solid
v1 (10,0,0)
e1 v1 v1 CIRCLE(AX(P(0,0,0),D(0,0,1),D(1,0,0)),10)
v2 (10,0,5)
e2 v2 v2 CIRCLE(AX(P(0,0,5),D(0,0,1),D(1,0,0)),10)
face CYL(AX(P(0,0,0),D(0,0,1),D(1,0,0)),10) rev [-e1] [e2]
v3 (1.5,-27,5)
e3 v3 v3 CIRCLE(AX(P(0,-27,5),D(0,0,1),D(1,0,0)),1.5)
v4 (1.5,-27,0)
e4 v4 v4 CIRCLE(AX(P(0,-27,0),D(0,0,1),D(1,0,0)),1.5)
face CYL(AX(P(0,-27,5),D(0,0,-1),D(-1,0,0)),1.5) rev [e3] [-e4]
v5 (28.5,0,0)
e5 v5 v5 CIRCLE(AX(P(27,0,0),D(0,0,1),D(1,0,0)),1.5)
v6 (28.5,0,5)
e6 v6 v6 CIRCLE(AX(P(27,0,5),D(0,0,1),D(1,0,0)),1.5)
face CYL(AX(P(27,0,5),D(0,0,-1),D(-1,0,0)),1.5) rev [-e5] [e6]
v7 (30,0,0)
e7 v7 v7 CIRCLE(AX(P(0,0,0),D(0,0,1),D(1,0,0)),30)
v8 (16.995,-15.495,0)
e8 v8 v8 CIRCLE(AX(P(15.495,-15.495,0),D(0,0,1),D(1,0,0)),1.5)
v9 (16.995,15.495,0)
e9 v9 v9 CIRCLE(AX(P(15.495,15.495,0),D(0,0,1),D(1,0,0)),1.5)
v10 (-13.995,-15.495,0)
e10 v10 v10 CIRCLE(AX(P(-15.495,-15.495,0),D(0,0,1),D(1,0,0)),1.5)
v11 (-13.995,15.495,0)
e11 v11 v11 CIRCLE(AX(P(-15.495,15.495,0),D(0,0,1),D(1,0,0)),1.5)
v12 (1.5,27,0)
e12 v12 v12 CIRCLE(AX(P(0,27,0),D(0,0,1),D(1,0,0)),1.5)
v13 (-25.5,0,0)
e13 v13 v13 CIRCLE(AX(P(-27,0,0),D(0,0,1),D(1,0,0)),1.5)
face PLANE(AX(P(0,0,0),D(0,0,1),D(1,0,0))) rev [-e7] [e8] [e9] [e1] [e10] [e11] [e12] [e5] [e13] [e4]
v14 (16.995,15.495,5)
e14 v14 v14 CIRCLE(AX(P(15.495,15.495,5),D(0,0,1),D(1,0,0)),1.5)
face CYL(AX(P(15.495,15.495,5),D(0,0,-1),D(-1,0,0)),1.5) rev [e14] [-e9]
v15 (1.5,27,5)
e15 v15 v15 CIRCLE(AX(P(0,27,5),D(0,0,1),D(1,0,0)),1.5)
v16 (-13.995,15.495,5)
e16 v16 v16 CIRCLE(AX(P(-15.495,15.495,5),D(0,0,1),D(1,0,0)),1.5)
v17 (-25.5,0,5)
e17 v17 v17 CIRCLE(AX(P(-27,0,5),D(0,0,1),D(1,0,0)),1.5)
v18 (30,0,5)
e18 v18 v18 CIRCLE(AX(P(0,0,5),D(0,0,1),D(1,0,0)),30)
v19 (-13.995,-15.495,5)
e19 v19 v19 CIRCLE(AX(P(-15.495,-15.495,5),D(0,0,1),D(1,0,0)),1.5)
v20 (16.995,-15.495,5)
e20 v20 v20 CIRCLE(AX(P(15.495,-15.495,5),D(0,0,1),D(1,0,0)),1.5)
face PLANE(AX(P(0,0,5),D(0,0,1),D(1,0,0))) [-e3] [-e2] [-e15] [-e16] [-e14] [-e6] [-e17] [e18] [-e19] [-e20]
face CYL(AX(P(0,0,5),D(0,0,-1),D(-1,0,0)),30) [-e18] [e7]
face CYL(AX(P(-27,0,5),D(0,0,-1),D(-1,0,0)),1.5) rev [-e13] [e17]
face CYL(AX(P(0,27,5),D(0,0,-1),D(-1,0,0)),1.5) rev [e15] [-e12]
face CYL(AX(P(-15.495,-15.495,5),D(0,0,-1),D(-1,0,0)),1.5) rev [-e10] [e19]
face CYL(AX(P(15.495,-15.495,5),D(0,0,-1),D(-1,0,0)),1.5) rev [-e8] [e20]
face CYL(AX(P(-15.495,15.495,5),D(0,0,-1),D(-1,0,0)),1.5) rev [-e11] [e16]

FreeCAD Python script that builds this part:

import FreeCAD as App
import Part
import Sketcher
from FreeCAD import Vector

doc = App.newDocument("Part")
body = doc.addObject("PartDesign::Body", "Body")

# Sketch on XY plane
sketch1 = doc.addObject("Sketcher::SketchObject", "Sketch")
body.addObject(sketch1)
sketch1.AttachmentSupport = (doc.XY_Plane, [""])
sketch1.MapMode = "FlatFace"
sketch1.addGeometry(Part.Circle(Vector(0, 0, 0), Vector(0, 0, 1), 30), False)
sketch1.addGeometry(Part.Circle(Vector(-15.5, -15.5, 0), Vector(0, 0, 1), 1.5), False)
sketch1.addGeometry(Part.Circle(Vector(0, -27, 0), Vector(0, 0, 1), 1.5), False)
sketch1.addGeometry(Part.Circle(Vector(15.5, -15.5, 0), Vector(0, 0, 1), 1.5), False)
sketch1.addGeometry(Part.Circle(Vector(-27, 0, 0), Vector(0, 0, 1), 1.5), False)
sketch1.addGeometry(Part.Circle(Vector(-15.5, 15.5, 0), Vector(0, 0, 1), 1.5), False)
sketch1.addGeometry(Part.Circle(Vector(27, 0, 0), Vector(0, 0, 1), 1.5), False)
sketch1.addGeometry(Part.Circle(Vector(0, 27, 0), Vector(0, 0, 1), 1.5), False)
sketch1.addGeometry(Part.Circle(Vector(15.5, 15.5, 0), Vector(0, 0, 1), 1.5), False)
sketch1.addConstraint(Sketcher.Constraint("Coincident", 0, 3, -1, 1))
sketch1.addConstraint(Sketcher.Constraint("Equal", 1, 2))
sketch1.addConstraint(Sketcher.Constraint("Equal", 2, 3))
sketch1.addConstraint(Sketcher.Constraint("Equal", 3, 4))
sketch1.addConstraint(Sketcher.Constraint("Equal", 4, 5))
sketch1.addConstraint(Sketcher.Constraint("Equal", 5, 6))
sketch1.addConstraint(Sketcher.Constraint("Equal", 6, 7))
sketch1.addConstraint(Sketcher.Constraint("Equal", 7, 8))
sketch1.addConstraint(Sketcher.Constraint("Symmetric", 3, 3, 5, 3, -1, 1))
sketch1.addConstraint(Sketcher.Constraint("Symmetric", 4, 3, 6, 3, -1, 1))
sketch1.addConstraint(Sketcher.Constraint("Symmetric", 2, 3, 7, 3, -1, 1))
sketch1.addConstraint(Sketcher.Constraint("Symmetric", 1, 3, 8, 3, -1, 1))
sketch1.addConstraint(Sketcher.Constraint("Symmetric", 1, 3, 3, 3, -2))
sketch1.addConstraint(Sketcher.Constraint("PointOnObject", 2, 3, -2))
sketch1.addConstraint(Sketcher.Constraint("PointOnObject", 4, 3, -1))
sketch1.addConstraint(Sketcher.Constraint("Diameter", 0, 60.0))
sketch1.addConstraint(Sketcher.Constraint("Diameter", 1, 3.0))
sketch1.addConstraint(Sketcher.Constraint("DistanceY", 2, 3, -1, 1, 27.0))
sketch1.addConstraint(Sketcher.Constraint("DistanceX", 4, 3, -1, 1, 27.0))
sketch1.addConstraint(Sketcher.Constraint("DistanceX", 1, 3, 3, 3, 30.99))
sketch1.addConstraint(Sketcher.Constraint("DistanceY", 1, 3, 5, 3, 30.99))
pad1 = doc.addObject("PartDesign::Pad", "Pad")
body.addObject(pad1)
pad1.Profile = sketch1
pad1.Length = 5

# Sketch on XY plane
sketch2 = doc.addObject("Sketcher::SketchObject", "Sketch001")
body.addObject(sketch2)
sketch2.AttachmentSupport = (doc.XY_Plane, [""])
sketch2.MapMode = "FlatFace"
sketch2.AttachmentOffset = App.Placement(Vector(0, 0, 5), App.Rotation())
sketch2.addGeometry(Part.Circle(Vector(0, 0, 0), Vector(0, 0, 1), 10), False)
sketch2.addGeometry(Part.Circle(Vector(-130, -8, 0), Vector(0, 0, 1), 10), False)
sketch2.addConstraint(Sketcher.Constraint("Coincident", 0, 3, -1, 1))
sketch2.addConstraint(Sketcher.Constraint("Equal", 0, 1))
sketch2.addConstraint(Sketcher.Constraint("Diameter", 0, 20.0))
sketch2.addConstraint(Sketcher.Constraint("DistanceX", 1, 3, -1, 1, 130.084852))
sketch2.addConstraint(Sketcher.Constraint("DistanceY", 1, 3, -1, 1, 8.286874))
pocket1 = doc.addObject("PartDesign::Pocket", "Pocket")
body.addObject(pocket1)
pocket1.Profile = sketch2
pocket1.Length = 5

doc.recompute()
